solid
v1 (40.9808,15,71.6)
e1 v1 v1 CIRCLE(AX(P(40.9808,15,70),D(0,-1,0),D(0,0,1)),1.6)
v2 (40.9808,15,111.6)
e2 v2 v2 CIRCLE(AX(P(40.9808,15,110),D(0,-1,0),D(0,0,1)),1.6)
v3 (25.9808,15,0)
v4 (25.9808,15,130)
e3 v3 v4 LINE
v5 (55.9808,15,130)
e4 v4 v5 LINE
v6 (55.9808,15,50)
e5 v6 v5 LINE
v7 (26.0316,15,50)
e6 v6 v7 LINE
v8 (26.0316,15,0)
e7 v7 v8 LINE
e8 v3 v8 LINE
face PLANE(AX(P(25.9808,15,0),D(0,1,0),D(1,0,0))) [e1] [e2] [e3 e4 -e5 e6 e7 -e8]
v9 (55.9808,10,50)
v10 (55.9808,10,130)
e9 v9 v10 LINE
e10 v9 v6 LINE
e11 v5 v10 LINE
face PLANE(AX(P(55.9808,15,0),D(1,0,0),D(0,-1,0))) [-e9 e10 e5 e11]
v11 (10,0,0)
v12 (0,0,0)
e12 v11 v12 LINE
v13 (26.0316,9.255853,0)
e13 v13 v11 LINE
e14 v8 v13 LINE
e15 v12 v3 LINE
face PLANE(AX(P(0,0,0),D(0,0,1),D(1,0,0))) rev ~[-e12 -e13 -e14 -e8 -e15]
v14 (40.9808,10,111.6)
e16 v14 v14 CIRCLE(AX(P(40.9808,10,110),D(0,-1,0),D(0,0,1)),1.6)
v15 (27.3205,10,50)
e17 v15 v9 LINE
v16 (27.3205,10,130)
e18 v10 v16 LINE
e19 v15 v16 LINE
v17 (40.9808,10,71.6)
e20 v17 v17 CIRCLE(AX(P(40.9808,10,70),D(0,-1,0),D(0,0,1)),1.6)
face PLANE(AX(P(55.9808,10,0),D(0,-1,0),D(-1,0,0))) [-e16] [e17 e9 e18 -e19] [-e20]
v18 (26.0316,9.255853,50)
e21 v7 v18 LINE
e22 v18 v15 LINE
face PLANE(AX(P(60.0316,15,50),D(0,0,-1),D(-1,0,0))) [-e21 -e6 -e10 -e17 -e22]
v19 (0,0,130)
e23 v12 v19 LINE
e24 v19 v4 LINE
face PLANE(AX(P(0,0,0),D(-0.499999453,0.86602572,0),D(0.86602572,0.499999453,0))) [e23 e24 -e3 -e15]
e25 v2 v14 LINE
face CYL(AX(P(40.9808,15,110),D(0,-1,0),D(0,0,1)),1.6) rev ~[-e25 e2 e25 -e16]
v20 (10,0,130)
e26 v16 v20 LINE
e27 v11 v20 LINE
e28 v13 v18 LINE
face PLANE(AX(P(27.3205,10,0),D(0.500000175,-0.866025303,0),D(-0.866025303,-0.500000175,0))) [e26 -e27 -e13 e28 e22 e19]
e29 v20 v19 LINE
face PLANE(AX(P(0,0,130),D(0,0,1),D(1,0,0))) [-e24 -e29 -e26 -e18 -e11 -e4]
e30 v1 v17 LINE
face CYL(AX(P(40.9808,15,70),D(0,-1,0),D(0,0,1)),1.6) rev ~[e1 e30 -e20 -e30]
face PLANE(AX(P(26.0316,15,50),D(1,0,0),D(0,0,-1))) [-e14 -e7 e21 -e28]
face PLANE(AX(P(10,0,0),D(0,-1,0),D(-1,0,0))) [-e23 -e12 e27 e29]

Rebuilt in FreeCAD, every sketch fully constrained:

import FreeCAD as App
import Part
import Sketcher
from FreeCAD import Vector
Q = App.Units.Quantity

doc = App.newDocument("Part")
body = doc.addObject("PartDesign::Body", "Body")

# Sketch on XY plane
sketch1 = body.newObject("Sketcher::SketchObject", "Sketch")
sketch1.AttachmentSupport = (doc.getObject("XY_Plane"), [""])
sketch1.MapMode = "FlatFace"
sketch1.addGeometry([
    Part.LineSegment(Vector(25.9808, 15, 0), Vector(0, 0, 0)),  # 0
    Part.LineSegment(Vector(0, 0, 0), Vector(10, 0, 0)),  # 1
    Part.LineSegment(Vector(10, 0, 0), Vector(27.3205, 10, 0)),  # 2
    Part.LineSegment(Vector(27.3205, 10, 0), Vector(55.9808, 10, 0)),  # 3
    Part.LineSegment(Vector(55.9808, 10, 0), Vector(55.9808, 15, 0)),  # 4
    Part.LineSegment(Vector(55.9808, 15, 0), Vector(25.9808, 15, 0)),  # 5
], False)
sketch1.addConstraint([
    Sketcher.Constraint("Coincident", 0, 2, 1, 1),
    Sketcher.Constraint("Coincident", 1, 2, 2, 1),
    Sketcher.Constraint("Coincident", 2, 2, 3, 1),
    Sketcher.Constraint("Coincident", 3, 2, 4, 1),
    Sketcher.Constraint("Coincident", 4, 2, 5, 1),
    Sketcher.Constraint("Coincident", 5, 2, 0, 1),
    Sketcher.Constraint("Horizontal", 1),
    Sketcher.Constraint("Horizontal", 3),
    Sketcher.Constraint("Vertical", 4),
    Sketcher.Constraint("Horizontal", 5),
    Sketcher.Constraint("Coincident", 0, 2, -1, 1),
    Sketcher.Constraint("Parallel", 0, 2),
    Sketcher.Constraint("DistanceX", 5, 2, 5, 1, 30.0),
    Sketcher.Constraint("DistanceY", 4, 1, 4, 2, 5.0),
    Sketcher.Constraint("Angle", 2, Q("30 deg")),
    Sketcher.Constraint("Distance", 0, 30.0),
    Sketcher.Constraint("DistanceX", 1, 1, 1, 2, 10.0),
])
pad1 = body.newObject("PartDesign::Pad", "Pad")
pad1.Profile = sketch1
pad1.Length = 130

# Sketch on XZ plane
sketch2 = body.newObject("Sketcher::SketchObject", "Sketch001")
sketch2.AttachmentSupport = (doc.getObject("XZ_Plane"), [""])
sketch2.MapMode = "FlatFace"
sketch2.AttachmentOffset = App.Placement(Vector(0, 0, -15), App.Rotation())
sketch2.addGeometry([
    Part.LineSegment(Vector(60.0316, -1.2153, 0), Vector(26.0316, -1.2153, 0)),
    Part.LineSegment(Vector(26.0316, -1.2153, 0), Vector(26.0316, 50, 0)),
    Part.LineSegment(Vector(26.0316, 50, 0), Vector(60.0316, 50, 0)),
    Part.LineSegment(Vector(60.0316, 50, 0), Vector(60.0316, -1.2153, 0)),
], False)
sketch2.addConstraint([
    Sketcher.Constraint("Coincident", 0, 2, 1, 1),
    Sketcher.Constraint("Coincident", 1, 2, 2, 1),
    Sketcher.Constraint("Coincident", 2, 2, 3, 1),
    Sketcher.Constraint("Coincident", 3, 2, 0, 1),
    Sketcher.Constraint("Horizontal", 0),
    Sketcher.Constraint("Vertical", 1),
    Sketcher.Constraint("Horizontal", 2),
    Sketcher.Constraint("Vertical", 3),
    Sketcher.Constraint("DistanceX", 0, 2, 0, 1, 34.0),
    Sketcher.Constraint("DistanceY", -1, 1, 1, 2, 50.0),
    Sketcher.Constraint("DistanceY", 1, 1, 1, 2, 51.2153),
    Sketcher.Constraint("DistanceX", -1, 1, 0, 2, 26.0316),
])
pocket1 = body.newObject("PartDesign::Pocket", "Pocket")
pocket1.Profile = sketch2
pocket1.Length = 300
pocket1.Reversed = True

# Sketch on XZ plane
sketch3 = body.newObject("Sketcher::SketchObject", "Sketch002")
sketch3.AttachmentSupport = (doc.getObject("XZ_Plane"), [""])
sketch3.MapMode = "FlatFace"
sketch3.AttachmentOffset = App.Placement(Vector(0, 0, -15), App.Rotation())
sketch3.addGeometry([
    Part.Circle(Vector(40.9808, 70, 0), Vector(0, 0, 1), 1.6),
    Part.Circle(Vector(40.9808, 110, 0), Vector(0, 0, 1), 1.6),
], False)
sketch3.addConstraint([
    Sketcher.Constraint("Equal", 0, 1),
    Sketcher.Constraint("Vertical", 0, 3, 1, 3),
    Sketcher.Constraint("Diameter", 0, 3.2),
    Sketcher.Constraint("DistanceY", -1, 1, 0, 3, 70.0),
    Sketcher.Constraint("DistanceY", -1, 1, 1, 3, 110.0),
    Sketcher.Constraint("DistanceX", -1, 1, 0, 3, 40.9808),
])
doc.recompute()
hole = body.newObject("PartDesign::Hole", "Hole")
hole.Profile = sketch3
hole.ThreadType = "None"
hole.Diameter = 3.2
hole.DepthType = "Dimension"
hole.Depth = 10
hole.DrillPoint = "Angled"
hole.DrillPointAngle = 118
hole.Reversed = True

doc.recompute()
